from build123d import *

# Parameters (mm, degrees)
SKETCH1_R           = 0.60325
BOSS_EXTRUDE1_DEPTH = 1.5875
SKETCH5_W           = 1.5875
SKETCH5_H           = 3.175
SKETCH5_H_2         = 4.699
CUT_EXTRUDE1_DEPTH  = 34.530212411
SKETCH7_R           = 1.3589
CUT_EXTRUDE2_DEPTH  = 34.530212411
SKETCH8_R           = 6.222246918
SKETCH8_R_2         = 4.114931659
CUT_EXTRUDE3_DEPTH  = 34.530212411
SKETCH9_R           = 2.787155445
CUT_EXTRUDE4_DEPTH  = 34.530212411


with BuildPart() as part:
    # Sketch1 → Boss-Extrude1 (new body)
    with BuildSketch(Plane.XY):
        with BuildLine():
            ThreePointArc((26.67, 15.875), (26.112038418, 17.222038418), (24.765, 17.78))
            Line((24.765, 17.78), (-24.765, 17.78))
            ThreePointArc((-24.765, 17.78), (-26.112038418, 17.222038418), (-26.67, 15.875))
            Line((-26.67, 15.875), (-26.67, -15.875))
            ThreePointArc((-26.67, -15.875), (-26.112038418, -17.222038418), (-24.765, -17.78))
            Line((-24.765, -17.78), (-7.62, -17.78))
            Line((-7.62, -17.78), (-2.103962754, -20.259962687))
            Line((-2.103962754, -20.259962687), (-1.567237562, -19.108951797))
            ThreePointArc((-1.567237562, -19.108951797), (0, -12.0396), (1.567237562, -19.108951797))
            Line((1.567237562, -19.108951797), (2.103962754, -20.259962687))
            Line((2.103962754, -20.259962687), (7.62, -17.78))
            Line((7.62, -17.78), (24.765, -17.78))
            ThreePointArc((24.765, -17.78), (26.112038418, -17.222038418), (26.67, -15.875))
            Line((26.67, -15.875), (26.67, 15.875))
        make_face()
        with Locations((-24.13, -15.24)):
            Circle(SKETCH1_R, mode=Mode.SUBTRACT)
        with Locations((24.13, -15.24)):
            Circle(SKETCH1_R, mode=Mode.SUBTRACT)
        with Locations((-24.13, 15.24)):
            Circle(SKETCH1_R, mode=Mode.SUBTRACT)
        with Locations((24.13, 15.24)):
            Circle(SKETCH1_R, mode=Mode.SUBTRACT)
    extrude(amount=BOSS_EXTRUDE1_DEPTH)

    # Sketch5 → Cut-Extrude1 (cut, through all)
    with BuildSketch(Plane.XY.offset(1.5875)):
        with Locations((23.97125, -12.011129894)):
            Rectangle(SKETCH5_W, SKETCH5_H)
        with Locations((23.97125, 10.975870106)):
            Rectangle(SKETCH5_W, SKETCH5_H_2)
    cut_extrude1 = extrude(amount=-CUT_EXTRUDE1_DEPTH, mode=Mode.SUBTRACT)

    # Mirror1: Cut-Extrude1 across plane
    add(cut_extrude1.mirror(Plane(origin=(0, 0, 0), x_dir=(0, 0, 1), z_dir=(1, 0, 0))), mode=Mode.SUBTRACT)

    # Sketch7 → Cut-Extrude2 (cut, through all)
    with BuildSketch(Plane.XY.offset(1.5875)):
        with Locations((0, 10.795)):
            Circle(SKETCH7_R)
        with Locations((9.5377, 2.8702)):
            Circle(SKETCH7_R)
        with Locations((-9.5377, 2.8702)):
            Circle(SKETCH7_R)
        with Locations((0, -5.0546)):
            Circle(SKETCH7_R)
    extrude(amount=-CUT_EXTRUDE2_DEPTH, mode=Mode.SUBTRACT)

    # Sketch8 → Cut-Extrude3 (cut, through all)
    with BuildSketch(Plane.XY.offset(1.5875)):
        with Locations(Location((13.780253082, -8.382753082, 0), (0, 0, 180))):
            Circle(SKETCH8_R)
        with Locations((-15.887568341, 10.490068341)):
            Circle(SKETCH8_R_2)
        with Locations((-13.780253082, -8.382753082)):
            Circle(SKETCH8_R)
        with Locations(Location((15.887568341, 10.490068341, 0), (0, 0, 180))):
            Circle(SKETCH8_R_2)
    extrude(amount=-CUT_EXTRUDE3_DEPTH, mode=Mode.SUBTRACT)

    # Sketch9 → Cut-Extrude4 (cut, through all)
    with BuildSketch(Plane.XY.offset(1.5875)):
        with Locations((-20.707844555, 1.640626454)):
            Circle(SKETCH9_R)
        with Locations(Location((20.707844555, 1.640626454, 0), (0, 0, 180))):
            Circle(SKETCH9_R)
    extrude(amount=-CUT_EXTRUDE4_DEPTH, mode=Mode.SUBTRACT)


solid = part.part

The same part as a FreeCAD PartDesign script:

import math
import FreeCAD as App
import Part
import Sketcher
from FreeCAD import Vector
Q = App.Units.Quantity

doc = App.newDocument("Part")
params = doc.addObject("Spreadsheet::Sheet", "Params")
for row, (alias, value) in enumerate([
    ("sketch1_radius", "0.075 in"),
    ("sketch1_radius2", "0.146 in"),
    ("sketch1_width", "1.95 in"),
    ("sketch1_height", "1.25 in"),
    ("sketch1_length", "0.05 in"),
    ("pad1_length", "0.0625 in"),
    ("sketch2_width", "0.0625 in"),
    ("sketch2_height", "0.125 in"),
    ("sketch2_height2", "0.185 in"),
    ("sketch3_diameter", "0.107 in"),
], start=1):
    params.set(f"A{row}", alias)
    params.set(f"B{row}", "=" + value)
    params.setAlias(f"B{row}", alias)

body = doc.addObject("PartDesign::Body", "Body")

# Sketch on XY plane
sketch1 = body.newObject("Sketcher::SketchObject", "Sketch")
sketch1.AttachmentSupport = (doc.getObject("XY_Plane"), [""])
sketch1.MapMode = "FlatFace"
sketch1.addGeometry(Part.ArcOfCircle(Part.Circle(Vector(24.8, 15.9, 0), Vector(0, 0, 1), 1.9), math.radians(0), math.radians(90)), False)
sketch1.addGeometry(Part.LineSegment(Vector(24.8, 17.8, 0), Vector(-24.8, 17.8, 0)), False)
sketch1.addGeometry(Part.ArcOfCircle(Part.Circle(Vector(-24.8, 15.9, 0), Vector(0, 0, 1), 1.9), math.radians(90), math.radians(180)), False)
sketch1.addGeometry(Part.LineSegment(Vector(-26.7, 15.9, 0), Vector(-26.7, -15.9, 0)), False)
sketch1.addGeometry(Part.ArcOfCircle(Part.Circle(Vector(-24.8, -15.9, 0), Vector(0, 0, 1), 1.9), math.radians(-180), math.radians(-90)), False)
sketch1.addGeometry(Part.LineSegment(Vector(-24.8, -17.8, 0), Vector(-7.6, -17.8, 0)), False)
sketch1.addGeometry(Part.LineSegment(Vector(-7.6, -17.8, 0), Vector(-2.1, -20.3, 0)), False)
sketch1.addGeometry(Part.LineSegment(Vector(-2.1, -20.3, 0), Vector(-1.6, -19.1, 0)), False)
sketch1.addGeometry(Part.ArcOfCircle(Part.Circle(Vector(0, -15.7, 0), Vector(0, 0, 1), 3.7), math.radians(-65), math.radians(245)), False)
sketch1.addGeometry(Part.LineSegment(Vector(1.6, -19.1, 0), Vector(2.1, -20.3, 0)), False)
sketch1.addGeometry(Part.LineSegment(Vector(2.1, -20.3, 0), Vector(7.6, -17.8, 0)), False)
sketch1.addGeometry(Part.LineSegment(Vector(7.6, -17.8, 0), Vector(24.8, -17.8, 0)), False)
sketch1.addGeometry(Part.ArcOfCircle(Part.Circle(Vector(24.8, -15.9, 0), Vector(0, 0, 1), 1.9), math.radians(-90), math.radians(0)), False)
sketch1.addGeometry(Part.LineSegment(Vector(26.7, -15.9, 0), Vector(26.7, 15.9, 0)), False)
sketch1.addGeometry(Part.Circle(Vector(-24.1, -15.2, 0), Vector(0, 0, 1), 0.6), False)
sketch1.addGeometry(Part.Circle(Vector(24.1, -15.2, 0), Vector(0, 0, 1), 0.6), False)
sketch1.addGeometry(Part.Circle(Vector(-24.1, 15.2, 0), Vector(0, 0, 1), 0.6), False)
sketch1.addGeometry(Part.Circle(Vector(24.1, 15.2, 0), Vector(0, 0, 1), 0.6), False)
sketch1.addConstraint(Sketcher.Constraint("Tangent", 0, 2, 1, 1))
sketch1.addConstraint(Sketcher.Constraint("Tangent", 1, 2, 2, 1))
sketch1.addConstraint(Sketcher.Constraint("Tangent", 2, 2, 3, 1))
sketch1.addConstraint(Sketcher.Constraint("Tangent", 3, 2, 4, 1))
sketch1.addConstraint(Sketcher.Constraint("Tangent", 4, 2, 5, 1))
sketch1.addConstraint(Sketcher.Constraint("Coincident", 5, 2, 6, 1))
sketch1.addConstraint(Sketcher.Constraint("Coincident", 6, 2, 7, 1))
sketch1.addConstraint(Sketcher.Constraint("Coincident", 7, 2, 8, 2))
sketch1.addConstraint(Sketcher.Constraint("Coincident", 8, 1, 9, 1))
sketch1.addConstraint(Sketcher.Constraint("Coincident", 9, 2, 10, 1))
sketch1.addConstraint(Sketcher.Constraint("Coincident", 10, 2, 11, 1))
sketch1.addConstraint(Sketcher.Constraint("Tangent", 11, 2, 12, 1))
sketch1.addConstraint(Sketcher.Constraint("Tangent", 12, 2, 13, 1))
sketch1.addConstraint(Sketcher.Constraint("Tangent", 13, 2, 0, 1))
sketch1.addConstraint(Sketcher.Constraint("Horizontal", 1))
sketch1.addConstraint(Sketcher.Constraint("Vertical", 3))
sketch1.addConstraint(Sketcher.Constraint("Horizontal", 5))
sketch1.addConstraint(Sketcher.Constraint("Horizontal", 11))
sketch1.addConstraint(Sketcher.Constraint("Vertical", 13))
sketch1.addConstraint(Sketcher.Constraint("Equal", 0, 2))
sketch1.addConstraint(Sketcher.Constraint("Equal", 2, 4))
sketch1.addConstraint(Sketcher.Constraint("Equal", 4, 12))
sketch1.addConstraint(Sketcher.Constraint("Equal", 14, 15))
sketch1.addConstraint(Sketcher.Constraint("Equal", 15, 16))
sketch1.addConstraint(Sketcher.Constraint("Equal", 16, 17))
sketch1.addConstraint(Sketcher.Constraint("Symmetric", 0, 3, 4, 3, -1, 1))
sketch1.addConstraint(Sketcher.Constraint("Symmetric", 15, 3, 16, 3, -1, 1))
sketch1.addConstraint(Sketcher.Constraint("Symmetric", 14, 3, 17, 3, -1, 1))
sketch1.addConstraint(Sketcher.Constraint("Symmetric", 14, 3, 15, 3, -2))
sketch1.addConstraint(Sketcher.Constraint("Symmetric", 7, 2, 8, 1, -2))
sketch1.addConstraint(Sketcher.Constraint("Symmetric", 6, 2, 9, 2, -2))
sketch1.addConstraint(Sketcher.Constraint("Symmetric", 5, 2, 10, 2, -2))
sketch1.addConstraint(Sketcher.Constraint("Angle", 7, Q("65 deg")))
sketch1.addConstraint(Sketcher.Constraint("Radius", 0, Q("0.075 in")))
sketch1.addConstraint(Sketcher.Constraint("Radius", 8, Q("0.146 in")))
sketch1.addConstraint(Sketcher.Constraint("Diameter", 14, Q("0.0475 in")))
sketch1.addConstraint(Sketcher.Constraint("DistanceX", 1, 2, 1, 1, Q("1.95 in")))
sketch1.addConstraint(Sketcher.Constraint("DistanceY", 3, 2, 3, 1, Q("1.25 in")))
sketch1.addConstraint(Sketcher.Constraint("DistanceY", 14, 3, -1, 1, Q("0.6 in")))
sketch1.addConstraint(Sketcher.Constraint("DistanceX", 5, 2, -1, 1, Q("0.3 in")))
sketch1.addConstraint(Sketcher.Constraint("DistanceX", 14, 3, 15, 3, Q("1.9 in")))
sketch1.addConstraint(Sketcher.Constraint("Distance", 7, Q("0.05 in")))
sketch1.addConstraint(Sketcher.Constraint("DistanceY", 8, 3, -1, 1, Q("0.62 in")))
sketch1.addConstraint(Sketcher.Constraint("DistanceX", 6, 2, 8, 1, Q("3.6712 mm")))
sketch1.setExpression("Constraints[33]", "Params.sketch1_radius")
sketch1.setExpression("Constraints[34]", "Params.sketch1_radius2")
sketch1.setExpression("Constraints[36]", "Params.sketch1_width")
sketch1.setExpression("Constraints[37]", "Params.sketch1_height")
sketch1.setExpression("Constraints[41]", "Params.sketch1_length")
pad1 = body.newObject("PartDesign::Pad", "Pad")
pad1.Profile = sketch1
pad1.setExpression("Length", "Params.pad1_length")

# Sketch on XY plane
sketch2 = body.newObject("Sketcher::SketchObject", "Sketch001")
sketch2.AttachmentSupport = (doc.getObject("XY_Plane"), [""])
sketch2.MapMode = "FlatFace"
sketch2.AttachmentOffset = App.Placement(Vector(0, 0, 0.0625 * 25.4), App.Rotation())
sketch2.addGeometry(Part.LineSegment(Vector(23.2, -10.4, 0), Vector(23.2, -13.6, 0)), False)
sketch2.addGeometry(Part.LineSegment(Vector(23.2, -13.6, 0), Vector(24.8, -13.6, 0)), False)
sketch2.addGeometry(Part.LineSegment(Vector(24.8, -13.6, 0), Vector(24.8, -10.4, 0)), False)
sketch2.addGeometry(Part.LineSegment(Vector(24.8, -10.4, 0), Vector(23.2, -10.4, 0)), False)
sketch2.addGeometry(Part.LineSegment(Vector(23.2, 13.3, 0), Vector(23.2, 8.6, 0)), False)
sketch2.addGeometry(Part.LineSegment(Vector(23.2, 8.6, 0), Vector(24.8, 8.6, 0)), False)
sketch2.addGeometry(Part.LineSegment(Vector(24.8, 8.6, 0), Vector(24.8, 13.3, 0)), False)
sketch2.addGeometry(Part.LineSegment(Vector(24.8, 13.3, 0), Vector(23.2, 13.3, 0)), False)
sketch2.addConstraint(Sketcher.Constraint("Coincident", 0, 2, 1, 1))
sketch2.addConstraint(Sketcher.Constraint("Coincident", 1, 2, 2, 1))
sketch2.addConstraint(Sketcher.Constraint("Coincident", 2, 2, 3, 1))
sketch2.addConstraint(Sketcher.Constraint("Coincident", 3, 2, 0, 1))
sketch2.addConstraint(Sketcher.Constraint("Coincident", 4, 2, 5, 1))
sketch2.addConstraint(Sketcher.Constraint("Coincident", 5, 2, 6, 1))
sketch2.addConstraint(Sketcher.Constraint("Coincident", 6, 2, 7, 1))
sketch2.addConstraint(Sketcher.Constraint("Coincident", 7, 2, 4, 1))
sketch2.addConstraint(Sketcher.Constraint("Vertical", 0))
sketch2.addConstraint(Sketcher.Constraint("Horizontal", 1))
sketch2.addConstraint(Sketcher.Constraint("Vertical", 2))
sketch2.addConstraint(Sketcher.Constraint("Horizontal", 3))
sketch2.addConstraint(Sketcher.Constraint("Vertical", 4))
sketch2.addConstraint(Sketcher.Constraint("Horizontal", 5))
sketch2.addConstraint(Sketcher.Constraint("Vertical", 6))
sketch2.addConstraint(Sketcher.Constraint("Horizontal", 7))
sketch2.addConstraint(Sketcher.Constraint("Vertical", 3, 2, 4, 2))
sketch2.addConstraint(Sketcher.Constraint("Vertical", 2, 2, 5, 2))
sketch2.addConstraint(Sketcher.Constraint("DistanceX", 1, 1, 1, 2, Q("0.0625 in")))
sketch2.addConstraint(Sketcher.Constraint("DistanceY", 0, 2, 0, 1, Q("0.125 in")))
sketch2.addConstraint(Sketcher.Constraint("DistanceY", 4, 2, 4, 1, Q("0.185 in")))
sketch2.addConstraint(Sketcher.Constraint("DistanceY", 3, 2, 4, 2, Q("0.75 in")))
sketch2.addConstraint(Sketcher.Constraint("DistanceX", -1, 1, 1, 2, Q("0.975 in")))
sketch2.addConstraint(Sketcher.Constraint("DistanceY", 0, 2, -1, 1, Q("13.59863 mm")))
sketch2.setExpression("Constraints[18]", "Params.sketch2_width")
sketch2.setExpression("Constraints[19]", "Params.sketch2_height")
sketch2.setExpression("Constraints[20]", "Params.sketch2_height2")
pocket1 = body.newObject("PartDesign::Pocket", "Pocket")
pocket1.Profile = sketch2
pocket1.Type = "ThroughAll"
doc.recompute()

mirrored = body.newObject("PartDesign::Mirrored", "Mirrored")
mirrored.Originals = [pocket1]
mirrored.MirrorPlane = (doc.getObject("YZ_Plane"), [""])
body.Tip = mirrored

# Sketch on XY plane
sketch3 = body.newObject("Sketcher::SketchObject", "Sketch002")
sketch3.AttachmentSupport = (doc.getObject("XY_Plane"), [""])
sketch3.MapMode = "FlatFace"
sketch3.AttachmentOffset = App.Placement(Vector(0, 0, 0.0625 * 25.4), App.Rotation())
sketch3.addGeometry(Part.Circle(Vector(0, 10.8, 0), Vector(0, 0, 1), 1.4), False)
sketch3.addGeometry(Part.Circle(Vector(9.5, 2.9, 0), Vector(0, 0, 1), 1.4), False)
sketch3.addGeometry(Part.Circle(Vector(-9.5, 2.9, 0), Vector(0, 0, 1), 1.4), False)
sketch3.addGeometry(Part.Circle(Vector(0, -5.1, 0), Vector(0, 0, 1), 1.4), False)
sketch3.addConstraint(Sketcher.Constraint("Equal", 0, 1))
sketch3.addConstraint(Sketcher.Constraint("Equal", 1, 2))
sketch3.addConstraint(Sketcher.Constraint("Equal", 2, 3))
sketch3.addConstraint(Sketcher.Constraint("Symmetric", 1, 3, 2, 3, -2))
sketch3.addConstraint(Sketcher.Constraint("PointOnObject", 0, 3, -2))
sketch3.addConstraint(Sketcher.Constraint("PointOnObject", 3, 3, -2))
sketch3.addConstraint(Sketcher.Constraint("Diameter", 0, Q("0.107 in")))
sketch3.addConstraint(Sketcher.Constraint("DistanceY", -1, 1, 0, 3, Q("0.425 in")))
sketch3.addConstraint(Sketcher.Constraint("DistanceY", -1, 1, 1, 3, Q("0.113 in")))
sketch3.addConstraint(Sketcher.Constraint("DistanceY", 3, 3, -1, 1, Q("0.199 in")))
sketch3.addConstraint(Sketcher.Constraint("DistanceX", 2, 3, 1, 3, Q("0.751 in")))
sketch3.setExpression("Constraints[6]", "Params.sketch3_diameter")
pocket2 = body.newObject("PartDesign::Pocket", "Pocket001")
pocket2.Profile = sketch3
pocket2.Type = "ThroughAll"

# Sketch on XY plane
sketch4 = body.newObject("Sketcher::SketchObject", "Sketch003")
sketch4.AttachmentSupport = (doc.getObject("XY_Plane"), [""])
sketch4.MapMode = "FlatFace"
sketch4.AttachmentOffset = App.Placement(Vector(0, 0, 0.0625 * 25.4), App.Rotation())
sketch4.addGeometry(Part.Circle(Vector(13.8, -8.4, 0), Vector(0, 0, 1), 6.2), False)
sketch4.addGeometry(Part.Circle(Vector(-15.9, 10.5, 0), Vector(0, 0, 1), 4.1), False)
sketch4.addGeometry(Part.Circle(Vector(-13.8, -8.4, 0), Vector(0, 0, 1), 6.2), False)
sketch4.addGeometry(Part.Circle(Vector(15.9, 10.5, 0), Vector(0, 0, 1), 4.1), False)
sketch4.addConstraint(Sketcher.Constraint("Equal", 0, 2))
sketch4.addConstraint(Sketcher.Constraint("Equal", 1, 3))
sketch4.addConstraint(Sketcher.Constraint("Symmetric", 0, 3, 2, 3, -2))
sketch4.addConstraint(Sketcher.Constraint("Symmetric", 1, 3, 3, 3, -2))
sketch4.addConstraint(Sketcher.Constraint("Diameter", 0, Q("12.444494 mm")))
sketch4.addConstraint(Sketcher.Constraint("Diameter", 1, Q("8.229863 mm")))
sketch4.addConstraint(Sketcher.Constraint("DistanceX", 1, 3, -1, 1, Q("15.887568 mm")))
sketch4.addConstraint(Sketcher.Constraint("DistanceY", -1, 1, 1, 3, Q("10.490068 mm")))
sketch4.addConstraint(Sketcher.Constraint("DistanceX", 1, 3, 0, 3, Q("29.667821 mm")))
sketch4.addConstraint(Sketcher.Constraint("DistanceY", 0, 3, 1, 3, Q("18.872821 mm")))
pocket3 = body.newObject("PartDesign::Pocket", "Pocket002")
pocket3.Profile = sketch4
pocket3.Type = "ThroughAll"

# Sketch on XY plane
sketch5 = body.newObject("Sketcher::SketchObject", "Sketch004")
sketch5.AttachmentSupport = (doc.getObject("XY_Plane"), [""])
sketch5.MapMode = "FlatFace"
sketch5.AttachmentOffset = App.Placement(Vector(0, 0, 0.0625 * 25.4), App.Rotation())
sketch5.addGeometry(Part.Circle(Vector(-20.7, 1.6, 0), Vector(0, 0, 1), 2.8), False)
sketch5.addGeometry(Part.Circle(Vector(20.7, 1.6, 0), Vector(0, 0, 1), 2.8), False)
sketch5.addConstraint(Sketcher.Constraint("Equal", 0, 1))
sketch5.addConstraint(Sketcher.Constraint("Symmetric", 0, 3, 1, 3, -2))
sketch5.addConstraint(Sketcher.Constraint("Diameter", 0, Q("5.574311 mm")))
sketch5.addConstraint(Sketcher.Constraint("DistanceX", 0, 3, 1, 3, Q("41.415689 mm")))
sketch5.addConstraint(Sketcher.Constraint("DistanceY", -1, 1, 0, 3, Q("1.640626 mm")))
pocket4 = body.newObject("PartDesign::Pocket", "Pocket003")
pocket4.Profile = sketch5
pocket4.Type = "ThroughAll"

doc.recompute()
